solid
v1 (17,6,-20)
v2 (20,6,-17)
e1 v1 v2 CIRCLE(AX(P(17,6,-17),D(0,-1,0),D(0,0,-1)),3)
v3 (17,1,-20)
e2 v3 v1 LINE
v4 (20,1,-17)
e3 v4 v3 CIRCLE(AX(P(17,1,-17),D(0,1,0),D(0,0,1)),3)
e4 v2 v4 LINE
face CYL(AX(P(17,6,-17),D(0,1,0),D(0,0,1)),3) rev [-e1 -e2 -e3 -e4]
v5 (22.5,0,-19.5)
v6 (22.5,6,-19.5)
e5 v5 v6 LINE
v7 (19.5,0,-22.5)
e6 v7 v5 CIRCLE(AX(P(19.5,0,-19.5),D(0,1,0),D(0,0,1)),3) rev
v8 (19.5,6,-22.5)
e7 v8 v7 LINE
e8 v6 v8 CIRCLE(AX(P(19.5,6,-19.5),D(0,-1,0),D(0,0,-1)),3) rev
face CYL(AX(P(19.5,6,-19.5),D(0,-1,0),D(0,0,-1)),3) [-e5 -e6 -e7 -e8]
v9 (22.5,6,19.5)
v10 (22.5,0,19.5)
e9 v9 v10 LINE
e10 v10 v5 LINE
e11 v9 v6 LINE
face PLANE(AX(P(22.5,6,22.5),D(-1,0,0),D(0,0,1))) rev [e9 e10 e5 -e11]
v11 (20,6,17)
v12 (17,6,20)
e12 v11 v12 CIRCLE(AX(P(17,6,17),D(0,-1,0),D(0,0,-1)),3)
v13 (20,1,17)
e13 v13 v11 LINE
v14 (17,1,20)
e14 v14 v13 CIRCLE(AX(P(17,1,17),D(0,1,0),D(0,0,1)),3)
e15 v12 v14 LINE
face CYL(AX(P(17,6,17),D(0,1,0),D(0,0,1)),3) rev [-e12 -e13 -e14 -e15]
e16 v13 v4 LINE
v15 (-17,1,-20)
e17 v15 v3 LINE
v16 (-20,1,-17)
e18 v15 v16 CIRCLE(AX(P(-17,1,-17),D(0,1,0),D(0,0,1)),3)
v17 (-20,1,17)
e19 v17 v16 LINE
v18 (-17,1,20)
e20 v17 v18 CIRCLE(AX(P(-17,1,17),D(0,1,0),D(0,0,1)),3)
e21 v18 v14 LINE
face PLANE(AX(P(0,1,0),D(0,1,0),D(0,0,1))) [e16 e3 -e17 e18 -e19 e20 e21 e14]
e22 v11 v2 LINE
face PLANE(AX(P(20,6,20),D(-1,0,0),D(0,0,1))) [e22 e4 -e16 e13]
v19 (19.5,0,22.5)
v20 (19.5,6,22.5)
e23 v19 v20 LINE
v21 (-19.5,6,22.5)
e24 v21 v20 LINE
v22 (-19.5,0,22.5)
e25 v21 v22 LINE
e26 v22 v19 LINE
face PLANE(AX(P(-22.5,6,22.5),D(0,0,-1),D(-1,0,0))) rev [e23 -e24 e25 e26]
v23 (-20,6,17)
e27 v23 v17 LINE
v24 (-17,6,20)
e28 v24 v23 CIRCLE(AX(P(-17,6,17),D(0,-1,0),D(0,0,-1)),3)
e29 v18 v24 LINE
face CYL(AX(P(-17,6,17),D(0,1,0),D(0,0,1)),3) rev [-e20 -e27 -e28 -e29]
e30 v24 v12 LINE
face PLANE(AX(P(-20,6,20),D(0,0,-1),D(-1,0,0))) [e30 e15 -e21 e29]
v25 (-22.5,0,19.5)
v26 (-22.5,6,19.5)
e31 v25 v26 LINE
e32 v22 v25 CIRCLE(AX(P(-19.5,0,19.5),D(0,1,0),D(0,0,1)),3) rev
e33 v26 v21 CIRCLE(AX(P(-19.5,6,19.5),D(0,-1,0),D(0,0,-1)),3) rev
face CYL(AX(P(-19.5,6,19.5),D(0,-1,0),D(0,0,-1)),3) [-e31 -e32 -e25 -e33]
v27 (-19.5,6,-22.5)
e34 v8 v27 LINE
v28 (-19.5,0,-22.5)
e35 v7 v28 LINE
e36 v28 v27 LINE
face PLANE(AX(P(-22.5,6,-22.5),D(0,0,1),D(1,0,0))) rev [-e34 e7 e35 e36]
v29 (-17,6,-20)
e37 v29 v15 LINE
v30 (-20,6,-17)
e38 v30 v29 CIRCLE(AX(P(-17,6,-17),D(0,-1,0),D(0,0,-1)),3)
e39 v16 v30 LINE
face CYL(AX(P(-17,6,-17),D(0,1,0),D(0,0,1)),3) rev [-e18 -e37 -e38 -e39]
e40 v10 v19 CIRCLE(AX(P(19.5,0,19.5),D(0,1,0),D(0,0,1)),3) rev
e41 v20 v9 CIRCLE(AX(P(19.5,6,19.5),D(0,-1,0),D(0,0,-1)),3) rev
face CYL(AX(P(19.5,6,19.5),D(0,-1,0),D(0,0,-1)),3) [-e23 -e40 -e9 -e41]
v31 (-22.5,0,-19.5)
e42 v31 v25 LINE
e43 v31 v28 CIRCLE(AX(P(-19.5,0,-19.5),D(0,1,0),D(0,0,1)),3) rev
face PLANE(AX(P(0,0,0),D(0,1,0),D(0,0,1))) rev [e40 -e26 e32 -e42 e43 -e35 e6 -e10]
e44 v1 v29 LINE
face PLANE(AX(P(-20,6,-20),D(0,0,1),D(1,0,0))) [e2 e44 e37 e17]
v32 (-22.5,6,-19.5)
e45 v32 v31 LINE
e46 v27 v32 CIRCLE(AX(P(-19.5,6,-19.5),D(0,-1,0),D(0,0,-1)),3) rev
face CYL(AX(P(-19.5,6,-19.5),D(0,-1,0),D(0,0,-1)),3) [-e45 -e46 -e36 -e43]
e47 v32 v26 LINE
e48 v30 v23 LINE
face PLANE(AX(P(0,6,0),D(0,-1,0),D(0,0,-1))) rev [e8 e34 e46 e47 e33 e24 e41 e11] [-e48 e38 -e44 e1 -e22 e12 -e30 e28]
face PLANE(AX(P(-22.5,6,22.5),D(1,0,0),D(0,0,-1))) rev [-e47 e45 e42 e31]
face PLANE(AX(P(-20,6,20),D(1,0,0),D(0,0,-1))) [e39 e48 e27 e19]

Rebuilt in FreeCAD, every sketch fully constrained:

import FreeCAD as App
import Part
import Sketcher

V = App.Vector
Q = App.Units.Quantity


def edges_at(feature, points):
    """Names of the edges that pass closest to the given points."""
    edges = feature.Shape.Edges
    near = lambda p: min(range(len(edges)), key=lambda i: edges[i].distToShape(Part.Vertex(*p))[0])
    return sorted({f"Edge{near(p) + 1}" for p in points})


def add_polygon(sketch, points):
    """Adds a closed chain of lines whose ends are joined by coincident constraints."""
    first, n = sketch.GeometryCount, len(points)
    for a, b in zip(points, points[1:] + points[:1]):
        sketch.addGeometry(Part.LineSegment(App.Vector(*a, 0), App.Vector(*b, 0)), False)
    for i in range(n):
        sketch.addConstraint(Sketcher.Constraint("Coincident", first + i, 2, first + (i + 1) % n, 1))

doc = App.newDocument("Part")
body = doc.addObject("PartDesign::Body", "Body")

sketch1 = body.newObject("Sketcher::SketchObject", "Sketch")
sketch1.AttachmentSupport = (doc.getObject("XZ_Plane"), [""])
sketch1.MapMode = "FlatFace"
add_polygon(sketch1, [(-20, -20), (-20, 20), (20, 20), (20, -20)])
sketch1.addConstraint([
    Sketcher.Constraint("Vertical", 0),
    Sketcher.Constraint("Horizontal", 1),
    Sketcher.Constraint("Vertical", 2),
    Sketcher.Constraint("Horizontal", 3),
    Sketcher.Constraint("Symmetric", 0, 2, 2, 2, -1, 1),
    Sketcher.Constraint("Equal", 3, 0),
    Sketcher.Constraint("DistanceX", 1, 1, 1, 2, Q("40 mm")),
])
pad1 = body.newObject("PartDesign::Pad", "Pad")
pad1.Profile = sketch1
pad1.Length = 1
pad1.Reversed = True

sketch2 = body.newObject("Sketcher::SketchObject", "Sketch001")
sketch2.AttachmentSupport = (doc.getObject("XZ_Plane"), [""])
sketch2.MapMode = "FlatFace"
add_polygon(sketch2, [(-22.5, -22.5), (-22.5, 22.5), (22.5, 22.5), (22.5, -22.5)])
add_polygon(sketch2, [(20, 20), (-20, 20), (-20, -20), (20, -20)])
sketch2.addConstraint([
    Sketcher.Constraint("Vertical", 0),
    Sketcher.Constraint("Horizontal", 1),
    Sketcher.Constraint("Vertical", 2),
    Sketcher.Constraint("Horizontal", 3),
    Sketcher.Constraint("Horizontal", 4),
    Sketcher.Constraint("Vertical", 5),
    Sketcher.Constraint("Horizontal", 6),
    Sketcher.Constraint("Vertical", 7),
    Sketcher.Constraint("Symmetric", 0, 2, 2, 2, -1, 1),
    Sketcher.Constraint("Symmetric", 4, 2, 6, 2, -1, 1),
    Sketcher.Constraint("Equal", 3, 0),
    Sketcher.Constraint("Equal", 6, 5),
    Sketcher.Constraint("DistanceX", 1, 1, 1, 2, Q("45 mm")),
    Sketcher.Constraint("DistanceX", 4, 2, 4, 1, Q("40 mm")),
])
pad2 = body.newObject("PartDesign::Pad", "Pad001")
pad2.Profile = sketch2
pad2.Length = 6
pad2.Reversed = True
doc.recompute()

fillet = body.newObject("PartDesign::Fillet", "Fillet")
fillet.Base = (pad2, edges_at(pad2, [
    (22.5, 3, 22.5),
    (22.5, 3, -22.5),
    (-22.5, 3, -22.5),
    (-22.5, 3, 22.5),
    (20, 3.5, -20),
    (-20, 3.5, -20),
    (-20, 3.5, 20),
    (20, 3.5, 20),
]))
fillet.Radius = 3

doc.recompute()
